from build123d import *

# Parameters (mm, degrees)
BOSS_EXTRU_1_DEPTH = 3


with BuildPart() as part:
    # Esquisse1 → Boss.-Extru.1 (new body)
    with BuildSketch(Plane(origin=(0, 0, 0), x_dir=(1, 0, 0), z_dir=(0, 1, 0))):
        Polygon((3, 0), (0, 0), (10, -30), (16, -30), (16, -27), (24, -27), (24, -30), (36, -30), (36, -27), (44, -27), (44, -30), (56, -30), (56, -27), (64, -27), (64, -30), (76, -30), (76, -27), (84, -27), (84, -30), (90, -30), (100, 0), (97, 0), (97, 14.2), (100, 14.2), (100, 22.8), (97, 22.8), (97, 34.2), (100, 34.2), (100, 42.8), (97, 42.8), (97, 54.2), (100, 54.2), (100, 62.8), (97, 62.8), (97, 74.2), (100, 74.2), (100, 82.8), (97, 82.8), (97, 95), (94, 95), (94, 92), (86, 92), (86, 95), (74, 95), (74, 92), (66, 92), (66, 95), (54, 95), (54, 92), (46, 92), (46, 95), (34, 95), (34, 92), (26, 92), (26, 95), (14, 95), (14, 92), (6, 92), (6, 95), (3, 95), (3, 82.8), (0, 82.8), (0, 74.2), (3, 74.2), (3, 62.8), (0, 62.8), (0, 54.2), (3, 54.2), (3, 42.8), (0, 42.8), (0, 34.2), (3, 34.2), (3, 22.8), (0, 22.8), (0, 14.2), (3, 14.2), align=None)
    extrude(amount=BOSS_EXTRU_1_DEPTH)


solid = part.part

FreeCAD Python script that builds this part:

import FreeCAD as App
import Part
import Sketcher
Q = App.Units.Quantity

doc = App.newDocument("Part")
body = doc.addObject("PartDesign::Body", "Body")

# Sketch on XZ plane
sketch1 = body.newObject("Sketcher::SketchObject", "Sketch")
sketch1.AttachmentSupport = (doc.getObject("XZ_Plane"), [""])
sketch1.MapMode = "FlatFace"
sketch1.addGeometry(Part.LineSegment(App.Vector(3, 0, 0), App.Vector(0, 0, 0)), False)
sketch1.addGeometry(Part.LineSegment(App.Vector(0, 0, 0), App.Vector(10, 30, 0)), False)
sketch1.addGeometry(Part.LineSegment(App.Vector(10, 30, 0), App.Vector(16, 30, 0)), False)
sketch1.addGeometry(Part.LineSegment(App.Vector(16, 30, 0), App.Vector(16, 27, 0)), False)
sketch1.addGeometry(Part.LineSegment(App.Vector(16, 27, 0), App.Vector(24, 27, 0)), False)
sketch1.addGeometry(Part.LineSegment(App.Vector(24, 27, 0), App.Vector(24, 30, 0)), False)
sketch1.addGeometry(Part.LineSegment(App.Vector(24, 30, 0), App.Vector(36, 30, 0)), False)
sketch1.addGeometry(Part.LineSegment(App.Vector(36, 30, 0), App.Vector(36, 27, 0)), False)
sketch1.addGeometry(Part.LineSegment(App.Vector(36, 27, 0), App.Vector(44, 27, 0)), False)
sketch1.addGeometry(Part.LineSegment(App.Vector(44, 27, 0), App.Vector(44, 30, 0)), False)
sketch1.addGeometry(Part.LineSegment(App.Vector(44, 30, 0), App.Vector(56, 30, 0)), False)
sketch1.addGeometry(Part.LineSegment(App.Vector(56, 30, 0), App.Vector(56, 27, 0)), False)
sketch1.addGeometry(Part.LineSegment(App.Vector(56, 27, 0), App.Vector(64, 27, 0)), False)
sketch1.addGeometry(Part.LineSegment(App.Vector(64, 27, 0), App.Vector(64, 30, 0)), False)
sketch1.addGeometry(Part.LineSegment(App.Vector(64, 30, 0), App.Vector(76, 30, 0)), False)
sketch1.addGeometry(Part.LineSegment(App.Vector(76, 30, 0), App.Vector(76, 27, 0)), False)
sketch1.addGeometry(Part.LineSegment(App.Vector(76, 27, 0), App.Vector(84, 27, 0)), False)
sketch1.addGeometry(Part.LineSegment(App.Vector(84, 27, 0), App.Vector(84, 30, 0)), False)
sketch1.addGeometry(Part.LineSegment(App.Vector(84, 30, 0), App.Vector(90, 30, 0)), False)
sketch1.addGeometry(Part.LineSegment(App.Vector(90, 30, 0), App.Vector(100, 0, 0)), False)
sketch1.addGeometry(Part.LineSegment(App.Vector(100, 0, 0), App.Vector(97, 0, 0)), False)
sketch1.addGeometry(Part.LineSegment(App.Vector(97, 0, 0), App.Vector(97, -14.2, 0)), False)
sketch1.addGeometry(Part.LineSegment(App.Vector(97, -14.2, 0), App.Vector(100, -14.2, 0)), False)
sketch1.addGeometry(Part.LineSegment(App.Vector(100, -14.2, 0), App.Vector(100, -22.8, 0)), False)
sketch1.addGeometry(Part.LineSegment(App.Vector(100, -22.8, 0), App.Vector(97, -22.8, 0)), False)
sketch1.addGeometry(Part.LineSegment(App.Vector(97, -22.8, 0), App.Vector(97, -34.2, 0)), False)
sketch1.addGeometry(Part.LineSegment(App.Vector(97, -34.2, 0), App.Vector(100, -34.2, 0)), False)
sketch1.addGeometry(Part.LineSegment(App.Vector(100, -34.2, 0), App.Vector(100, -42.8, 0)), False)
sketch1.addGeometry(Part.LineSegment(App.Vector(100, -42.8, 0), App.Vector(97, -42.8, 0)), False)
sketch1.addGeometry(Part.LineSegment(App.Vector(97, -42.8, 0), App.Vector(97, -54.2, 0)), False)
sketch1.addGeometry(Part.LineSegment(App.Vector(97, -54.2, 0), App.Vector(100, -54.2, 0)), False)
sketch1.addGeometry(Part.LineSegment(App.Vector(100, -54.2, 0), App.Vector(100, -62.8, 0)), False)
sketch1.addGeometry(Part.LineSegment(App.Vector(100, -62.8, 0), App.Vector(97, -62.8, 0)), False)
sketch1.addGeometry(Part.LineSegment(App.Vector(97, -62.8, 0), App.Vector(97, -74.2, 0)), False)
sketch1.addGeometry(Part.LineSegment(App.Vector(97, -74.2, 0), App.Vector(100, -74.2, 0)), False)
sketch1.addGeometry(Part.LineSegment(App.Vector(100, -74.2, 0), App.Vector(100, -82.8, 0)), False)
sketch1.addGeometry(Part.LineSegment(App.Vector(100, -82.8, 0), App.Vector(97, -82.8, 0)), False)
sketch1.addGeometry(Part.LineSegment(App.Vector(97, -82.8, 0), App.Vector(97, -95, 0)), False)
sketch1.addGeometry(Part.LineSegment(App.Vector(97, -95, 0), App.Vector(94, -95, 0)), False)
sketch1.addGeometry(Part.LineSegment(App.Vector(94, -95, 0), App.Vector(94, -92, 0)), False)
sketch1.addGeometry(Part.LineSegment(App.Vector(94, -92, 0), App.Vector(86, -92, 0)), False)
sketch1.addGeometry(Part.LineSegment(App.Vector(86, -92, 0), App.Vector(86, -95, 0)), False)
sketch1.addGeometry(Part.LineSegment(App.Vector(86, -95, 0), App.Vector(74, -95, 0)), False)
sketch1.addGeometry(Part.LineSegment(App.Vector(74, -95, 0), App.Vector(74, -92, 0)), False)
sketch1.addGeometry(Part.LineSegment(App.Vector(74, -92, 0), App.Vector(66, -92, 0)), False)
sketch1.addGeometry(Part.LineSegment(App.Vector(66, -92, 0), App.Vector(66, -95, 0)), False)
sketch1.addGeometry(Part.LineSegment(App.Vector(66, -95, 0), App.Vector(54, -95, 0)), False)
sketch1.addGeometry(Part.LineSegment(App.Vector(54, -95, 0), App.Vector(54, -92, 0)), False)
sketch1.addGeometry(Part.LineSegment(App.Vector(54, -92, 0), App.Vector(46, -92, 0)), False)
sketch1.addGeometry(Part.LineSegment(App.Vector(46, -92, 0), App.Vector(46, -95, 0)), False)
sketch1.addGeometry(Part.LineSegment(App.Vector(46, -95, 0), App.Vector(34, -95, 0)), False)
sketch1.addGeometry(Part.LineSegment(App.Vector(34, -95, 0), App.Vector(34, -92, 0)), False)
sketch1.addGeometry(Part.LineSegment(App.Vector(34, -92, 0), App.Vector(26, -92, 0)), False)
sketch1.addGeometry(Part.LineSegment(App.Vector(26, -92, 0), App.Vector(26, -95, 0)), False)
sketch1.addGeometry(Part.LineSegment(App.Vector(26, -95, 0), App.Vector(14, -95, 0)), False)
sketch1.addGeometry(Part.LineSegment(App.Vector(14, -95, 0), App.Vector(14, -92, 0)), False)
sketch1.addGeometry(Part.LineSegment(App.Vector(14, -92, 0), App.Vector(6, -92, 0)), False)
sketch1.addGeometry(Part.LineSegment(App.Vector(6, -92, 0), App.Vector(6, -95, 0)), False)
sketch1.addGeometry(Part.LineSegment(App.Vector(6, -95, 0), App.Vector(3, -95, 0)), False)
sketch1.addGeometry(Part.LineSegment(App.Vector(3, -95, 0), App.Vector(3, -82.8, 0)), False)
sketch1.addGeometry(Part.LineSegment(App.Vector(3, -82.8, 0), App.Vector(0, -82.8, 0)), False)
sketch1.addGeometry(Part.LineSegment(App.Vector(0, -82.8, 0), App.Vector(0, -74.2, 0)), False)
sketch1.addGeometry(Part.LineSegment(App.Vector(0, -74.2, 0), App.Vector(3, -74.2, 0)), False)
sketch1.addGeometry(Part.LineSegment(App.Vector(3, -74.2, 0), App.Vector(3, -62.8, 0)), False)
sketch1.addGeometry(Part.LineSegment(App.Vector(3, -62.8, 0), App.Vector(0, -62.8, 0)), False)
sketch1.addGeometry(Part.LineSegment(App.Vector(0, -62.8, 0), App.Vector(0, -54.2, 0)), False)
sketch1.addGeometry(Part.LineSegment(App.Vector(0, -54.2, 0), App.Vector(3, -54.2, 0)), False)
sketch1.addGeometry(Part.LineSegment(App.Vector(3, -54.2, 0), App.Vector(3, -42.8, 0)), False)
sketch1.addGeometry(Part.LineSegment(App.Vector(3, -42.8, 0), App.Vector(0, -42.8, 0)), False)
sketch1.addGeometry(Part.LineSegment(App.Vector(0, -42.8, 0), App.Vector(0, -34.2, 0)), False)
sketch1.addGeometry(Part.LineSegment(App.Vector(0, -34.2, 0), App.Vector(3, -34.2, 0)), False)
sketch1.addGeometry(Part.LineSegment(App.Vector(3, -34.2, 0), App.Vector(3, -22.8, 0)), False)
sketch1.addGeometry(Part.LineSegment(App.Vector(3, -22.8, 0), App.Vector(0, -22.8, 0)), False)
sketch1.addGeometry(Part.LineSegment(App.Vector(0, -22.8, 0), App.Vector(0, -14.2, 0)), False)
sketch1.addGeometry(Part.LineSegment(App.Vector(0, -14.2, 0), App.Vector(3, -14.2, 0)), False)
sketch1.addGeometry(Part.LineSegment(App.Vector(3, -14.2, 0), App.Vector(3, 0, 0)), False)
sketch1.addConstraint(Sketcher.Constraint("Coincident", 0, 2, 1, 1))
sketch1.addConstraint(Sketcher.Constraint("Coincident", 1, 2, 2, 1))
sketch1.addConstraint(Sketcher.Constraint("Coincident", 2, 2, 3, 1))
sketch1.addConstraint(Sketcher.Constraint("Coincident", 3, 2, 4, 1))
sketch1.addConstraint(Sketcher.Constraint("Coincident", 4, 2, 5, 1))
sketch1.addConstraint(Sketcher.Constraint("Coincident", 5, 2, 6, 1))
sketch1.addConstraint(Sketcher.Constraint("Coincident", 6, 2, 7, 1))
sketch1.addConstraint(Sketcher.Constraint("Coincident", 7, 2, 8, 1))
sketch1.addConstraint(Sketcher.Constraint("Coincident", 8, 2, 9, 1))
sketch1.addConstraint(Sketcher.Constraint("Coincident", 9, 2, 10, 1))
sketch1.addConstraint(Sketcher.Constraint("Coincident", 10, 2, 11, 1))
sketch1.addConstraint(Sketcher.Constraint("Coincident", 11, 2, 12, 1))
sketch1.addConstraint(Sketcher.Constraint("Coincident", 12, 2, 13, 1))
sketch1.addConstraint(Sketcher.Constraint("Coincident", 13, 2, 14, 1))
sketch1.addConstraint(Sketcher.Constraint("Coincident", 14, 2, 15, 1))
sketch1.addConstraint(Sketcher.Constraint("Coincident", 15, 2, 16, 1))
sketch1.addConstraint(Sketcher.Constraint("Coincident", 16, 2, 17, 1))
sketch1.addConstraint(Sketcher.Constraint("Coincident", 17, 2, 18, 1))
sketch1.addConstraint(Sketcher.Constraint("Coincident", 18, 2, 19, 1))
sketch1.addConstraint(Sketcher.Constraint("Coincident", 19, 2, 20, 1))
sketch1.addConstraint(Sketcher.Constraint("Coincident", 20, 2, 21, 1))
sketch1.addConstraint(Sketcher.Constraint("Coincident", 21, 2, 22, 1))
sketch1.addConstraint(Sketcher.Constraint("Coincident", 22, 2, 23, 1))
sketch1.addConstraint(Sketcher.Constraint("Coincident", 23, 2, 24, 1))
sketch1.addConstraint(Sketcher.Constraint("Coincident", 24, 2, 25, 1))
sketch1.addConstraint(Sketcher.Constraint("Coincident", 25, 2, 26, 1))
sketch1.addConstraint(Sketcher.Constraint("Coincident", 26, 2, 27, 1))
sketch1.addConstraint(Sketcher.Constraint("Coincident", 27, 2, 28, 1))
sketch1.addConstraint(Sketcher.Constraint("Coincident", 28, 2, 29, 1))
sketch1.addConstraint(Sketcher.Constraint("Coincident", 29, 2, 30, 1))
sketch1.addConstraint(Sketcher.Constraint("Coincident", 30, 2, 31, 1))
sketch1.addConstraint(Sketcher.Constraint("Coincident", 31, 2, 32, 1))
sketch1.addConstraint(Sketcher.Constraint("Coincident", 32, 2, 33, 1))
sketch1.addConstraint(Sketcher.Constraint("Coincident", 33, 2, 34, 1))
sketch1.addConstraint(Sketcher.Constraint("Coincident", 34, 2, 35, 1))
sketch1.addConstraint(Sketcher.Constraint("Coincident", 35, 2, 36, 1))
sketch1.addConstraint(Sketcher.Constraint("Coincident", 36, 2, 37, 1))
sketch1.addConstraint(Sketcher.Constraint("Coincident", 37, 2, 38, 1))
sketch1.addConstraint(Sketcher.Constraint("Coincident", 38, 2, 39, 1))
sketch1.addConstraint(Sketcher.Constraint("Coincident", 39, 2, 40, 1))
sketch1.addConstraint(Sketcher.Constraint("Coincident", 40, 2, 41, 1))
sketch1.addConstraint(Sketcher.Constraint("Coincident", 41, 2, 42, 1))
sketch1.addConstraint(Sketcher.Constraint("Coincident", 42, 2, 43, 1))
sketch1.addConstraint(Sketcher.Constraint("Coincident", 43, 2, 44, 1))
sketch1.addConstraint(Sketcher.Constraint("Coincident", 44, 2, 45, 1))
sketch1.addConstraint(Sketcher.Constraint("Coincident", 45, 2, 46, 1))
sketch1.addConstraint(Sketcher.Constraint("Coincident", 46, 2, 47, 1))
sketch1.addConstraint(Sketcher.Constraint("Coincident", 47, 2, 48, 1))
sketch1.addConstraint(Sketcher.Constraint("Coincident", 48, 2, 49, 1))
sketch1.addConstraint(Sketcher.Constraint("Coincident", 49, 2, 50, 1))
sketch1.addConstraint(Sketcher.Constraint("Coincident", 50, 2, 51, 1))
sketch1.addConstraint(Sketcher.Constraint("Coincident", 51, 2, 52, 1))
sketch1.addConstraint(Sketcher.Constraint("Coincident", 52, 2, 53, 1))
sketch1.addConstraint(Sketcher.Constraint("Coincident", 53, 2, 54, 1))
sketch1.addConstraint(Sketcher.Constraint("Coincident", 54, 2, 55, 1))
sketch1.addConstraint(Sketcher.Constraint("Coincident", 55, 2, 56, 1))
sketch1.addConstraint(Sketcher.Constraint("Coincident", 56, 2, 57, 1))
sketch1.addConstraint(Sketcher.Constraint("Coincident", 57, 2, 58, 1))
sketch1.addConstraint(Sketcher.Constraint("Coincident", 58, 2, 59, 1))
sketch1.addConstraint(Sketcher.Constraint("Coincident", 59, 2, 60, 1))
sketch1.addConstraint(Sketcher.Constraint("Coincident", 60, 2, 61, 1))
sketch1.addConstraint(Sketcher.Constraint("Coincident", 61, 2, 62, 1))
sketch1.addConstraint(Sketcher.Constraint("Coincident", 62, 2, 63, 1))
sketch1.addConstraint(Sketcher.Constraint("Coincident", 63, 2, 64, 1))
sketch1.addConstraint(Sketcher.Constraint("Coincident", 64, 2, 65, 1))
sketch1.addConstraint(Sketcher.Constraint("Coincident", 65, 2, 66, 1))
sketch1.addConstraint(Sketcher.Constraint("Coincident", 66, 2, 67, 1))
sketch1.addConstraint(Sketcher.Constraint("Coincident", 67, 2, 68, 1))
sketch1.addConstraint(Sketcher.Constraint("Coincident", 68, 2, 69, 1))
sketch1.addConstraint(Sketcher.Constraint("Coincident", 69, 2, 70, 1))
sketch1.addConstraint(Sketcher.Constraint("Coincident", 70, 2, 71, 1))
sketch1.addConstraint(Sketcher.Constraint("Coincident", 71, 2, 72, 1))
sketch1.addConstraint(Sketcher.Constraint("Coincident", 72, 2, 73, 1))
sketch1.addConstraint(Sketcher.Constraint("Coincident", 73, 2, 74, 1))
sketch1.addConstraint(Sketcher.Constraint("Coincident", 74, 2, 75, 1))
sketch1.addConstraint(Sketcher.Constraint("Coincident", 75, 2, 0, 1))
sketch1.addConstraint(Sketcher.Constraint("Horizontal", 0))
sketch1.addConstraint(Sketcher.Constraint("Horizontal", 2))
sketch1.addConstraint(Sketcher.Constraint("Vertical", 3))
sketch1.addConstraint(Sketcher.Constraint("Horizontal", 4))
sketch1.addConstraint(Sketcher.Constraint("Vertical", 5))
sketch1.addConstraint(Sketcher.Constraint("Horizontal", 6))
sketch1.addConstraint(Sketcher.Constraint("Vertical", 7))
sketch1.addConstraint(Sketcher.Constraint("Horizontal", 8))
sketch1.addConstraint(Sketcher.Constraint("Vertical", 9))
sketch1.addConstraint(Sketcher.Constraint("Horizontal", 10))
sketch1.addConstraint(Sketcher.Constraint("Vertical", 11))
sketch1.addConstraint(Sketcher.Constraint("Horizontal", 12))
sketch1.addConstraint(Sketcher.Constraint("Vertical", 13))
sketch1.addConstraint(Sketcher.Constraint("Horizontal", 14))
sketch1.addConstraint(Sketcher.Constraint("Vertical", 15))
sketch1.addConstraint(Sketcher.Constraint("Horizontal", 16))
sketch1.addConstraint(Sketcher.Constraint("Vertical", 17))
sketch1.addConstraint(Sketcher.Constraint("Horizontal", 18))
sketch1.addConstraint(Sketcher.Constraint("Horizontal", 20))
sketch1.addConstraint(Sketcher.Constraint("Vertical", 21))
sketch1.addConstraint(Sketcher.Constraint("Horizontal", 22))
sketch1.addConstraint(Sketcher.Constraint("Vertical", 23))
sketch1.addConstraint(Sketcher.Constraint("Horizontal", 24))
sketch1.addConstraint(Sketcher.Constraint("Vertical", 25))
sketch1.addConstraint(Sketcher.Constraint("Horizontal", 26))
sketch1.addConstraint(Sketcher.Constraint("Vertical", 27))
sketch1.addConstraint(Sketcher.Constraint("Horizontal", 28))
sketch1.addConstraint(Sketcher.Constraint("Vertical", 29))
sketch1.addConstraint(Sketcher.Constraint("Horizontal", 30))
sketch1.addConstraint(Sketcher.Constraint("Vertical", 31))
sketch1.addConstraint(Sketcher.Constraint("Horizontal", 32))
sketch1.addConstraint(Sketcher.Constraint("Vertical", 33))
sketch1.addConstraint(Sketcher.Constraint("Horizontal", 34))
sketch1.addConstraint(Sketcher.Constraint("Vertical", 35))
sketch1.addConstraint(Sketcher.Constraint("Horizontal", 36))
sketch1.addConstraint(Sketcher.Constraint("Vertical", 37))
sketch1.addConstraint(Sketcher.Constraint("Horizontal", 38))
sketch1.addConstraint(Sketcher.Constraint("Vertical", 39))
sketch1.addConstraint(Sketcher.Constraint("Horizontal", 40))
sketch1.addConstraint(Sketcher.Constraint("Vertical", 41))
sketch1.addConstraint(Sketcher.Constraint("Horizontal", 42))
sketch1.addConstraint(Sketcher.Constraint("Vertical", 43))
sketch1.addConstraint(Sketcher.Constraint("Horizontal", 44))
sketch1.addConstraint(Sketcher.Constraint("Vertical", 45))
sketch1.addConstraint(Sketcher.Constraint("Horizontal", 46))
sketch1.addConstraint(Sketcher.Constraint("Vertical", 47))
sketch1.addConstraint(Sketcher.Constraint("Horizontal", 48))
sketch1.addConstraint(Sketcher.Constraint("Vertical", 49))
sketch1.addConstraint(Sketcher.Constraint("Horizontal", 50))
sketch1.addConstraint(Sketcher.Constraint("Vertical", 51))
sketch1.addConstraint(Sketcher.Constraint("Horizontal", 52))
sketch1.addConstraint(Sketcher.Constraint("Vertical", 53))
sketch1.addConstraint(Sketcher.Constraint("Horizontal", 54))
sketch1.addConstraint(Sketcher.Constraint("Vertical", 55))
sketch1.addConstraint(Sketcher.Constraint("Horizontal", 56))
sketch1.addConstraint(Sketcher.Constraint("Vertical", 57))
sketch1.addConstraint(Sketcher.Constraint("Horizontal", 58))
sketch1.addConstraint(Sketcher.Constraint("Vertical", 59))
sketch1.addConstraint(Sketcher.Constraint("Horizontal", 60))
sketch1.addConstraint(Sketcher.Constraint("Vertical", 61))
sketch1.addConstraint(Sketcher.Constraint("Horizontal", 62))
sketch1.addConstraint(Sketcher.Constraint("Vertical", 63))
sketch1.addConstraint(Sketcher.Constraint("Horizontal", 64))
sketch1.addConstraint(Sketcher.Constraint("Vertical", 65))
sketch1.addConstraint(Sketcher.Constraint("Horizontal", 66))
sketch1.addConstraint(Sketcher.Constraint("Vertical", 67))
sketch1.addConstraint(Sketcher.Constraint("Horizontal", 68))
sketch1.addConstraint(Sketcher.Constraint("Vertical", 69))
sketch1.addConstraint(Sketcher.Constraint("Horizontal", 70))
sketch1.addConstraint(Sketcher.Constraint("Vertical", 71))
sketch1.addConstraint(Sketcher.Constraint("Horizontal", 72))
sketch1.addConstraint(Sketcher.Constraint("Vertical", 73))
sketch1.addConstraint(Sketcher.Constraint("Horizontal", 74))
sketch1.addConstraint(Sketcher.Constraint("Vertical", 75))
sketch1.addConstraint(Sketcher.Constraint("Coincident", 0, 2, -1, 1))
sketch1.addConstraint(Sketcher.Constraint("PointOnObject", 19, 2, -1))
sketch1.addConstraint(Sketcher.Constraint("PointOnObject", 60, 2, -2))
sketch1.addConstraint(Sketcher.Constraint("PointOnObject", 64, 2, -2))
sketch1.addConstraint(Sketcher.Constraint("PointOnObject", 68, 2, -2))
sketch1.addConstraint(Sketcher.Constraint("PointOnObject", 72, 2, -2))
sketch1.addConstraint(Sketcher.Constraint("Horizontal", 2, 2, 5, 2))
sketch1.addConstraint(Sketcher.Constraint("Horizontal", 4, 2, 7, 2))
sketch1.addConstraint(Sketcher.Constraint("Horizontal", 6, 2, 9, 2))
sketch1.addConstraint(Sketcher.Constraint("Horizontal", 8, 2, 11, 2))
sketch1.addConstraint(Sketcher.Constraint("Horizontal", 10, 2, 13, 2))
sketch1.addConstraint(Sketcher.Constraint("Horizontal", 12, 2, 15, 2))
sketch1.addConstraint(Sketcher.Constraint("Horizontal", 14, 2, 17, 2))
sketch1.addConstraint(Sketcher.Constraint("Horizontal", 38, 2, 41, 2))
sketch1.addConstraint(Sketcher.Constraint("Horizontal", 40, 2, 43, 2))
sketch1.addConstraint(Sketcher.Constraint("Horizontal", 42, 2, 45, 2))
sketch1.addConstraint(Sketcher.Constraint("Horizontal", 44, 2, 47, 2))
sketch1.addConstraint(Sketcher.Constraint("Horizontal", 46, 2, 49, 2))
sketch1.addConstraint(Sketcher.Constraint("Horizontal", 48, 2, 51, 2))
sketch1.addConstraint(Sketcher.Constraint("Horizontal", 50, 2, 53, 2))
sketch1.addConstraint(Sketcher.Constraint("Horizontal", 52, 2, 55, 2))
sketch1.addConstraint(Sketcher.Constraint("Horizontal", 54, 2, 57, 2))
sketch1.addConstraint(Sketcher.Constraint("Horizontal", 36, 2, 59, 2))
sketch1.addConstraint(Sketcher.Constraint("Horizontal", 34, 2, 61, 2))
sketch1.addConstraint(Sketcher.Constraint("Horizontal", 32, 2, 63, 2))
sketch1.addConstraint(Sketcher.Constraint("Horizontal", 30, 2, 65, 2))
sketch1.addConstraint(Sketcher.Constraint("Horizontal", 28, 2, 67, 2))
sketch1.addConstraint(Sketcher.Constraint("Horizontal", 26, 2, 69, 2))
sketch1.addConstraint(Sketcher.Constraint("Horizontal", 24, 2, 71, 2))
sketch1.addConstraint(Sketcher.Constraint("Horizontal", 22, 2, 73, 2))
sketch1.addConstraint(Sketcher.Constraint("Vertical", 19, 2, 22, 2))
sketch1.addConstraint(Sketcher.Constraint("Vertical", 21, 2, 24, 2))
sketch1.addConstraint(Sketcher.Constraint("Vertical", 23, 2, 26, 2))
sketch1.addConstraint(Sketcher.Constraint("Vertical", 25, 2, 28, 2))
sketch1.addConstraint(Sketcher.Constraint("Vertical", 27, 2, 30, 2))
sketch1.addConstraint(Sketcher.Constraint("Vertical", 29, 2, 32, 2))
sketch1.addConstraint(Sketcher.Constraint("Vertical", 31, 2, 34, 2))
sketch1.addConstraint(Sketcher.Constraint("Vertical", 33, 2, 36, 2))
sketch1.addConstraint(Sketcher.Constraint("Vertical", 59, 2, 62, 2))
sketch1.addConstraint(Sketcher.Constraint("Vertical", 63, 2, 66, 2))
sketch1.addConstraint(Sketcher.Constraint("Vertical", 67, 2, 70, 2))
sketch1.addConstraint(Sketcher.Constraint("Vertical", 71, 2, 74, 2))
sketch1.addConstraint(Sketcher.Constraint("Equal", 4, 8))
sketch1.addConstraint(Sketcher.Constraint("Equal", 6, 10))
sketch1.addConstraint(Sketcher.Constraint("Equal", 8, 12))
sketch1.addConstraint(Sketcher.Constraint("Equal", 10, 14))
sketch1.addConstraint(Sketcher.Constraint("Equal", 12, 16))
sketch1.addConstraint(Sketcher.Constraint("Equal", 2, 18))
sketch1.addConstraint(Sketcher.Constraint("Equal", 0, 20))
sketch1.addConstraint(Sketcher.Constraint("Equal", 36, 38))
sketch1.addConstraint(Sketcher.Constraint("Equal", 16, 40))
sketch1.addConstraint(Sketcher.Constraint("Equal", 14, 42))
sketch1.addConstraint(Sketcher.Constraint("Equal", 40, 44))
sketch1.addConstraint(Sketcher.Constraint("Equal", 42, 46))
sketch1.addConstraint(Sketcher.Constraint("Equal", 44, 48))
sketch1.addConstraint(Sketcher.Constraint("Equal", 46, 50))
sketch1.addConstraint(Sketcher.Constraint("Equal", 48, 52))
sketch1.addConstraint(Sketcher.Constraint("Equal", 50, 54))
sketch1.addConstraint(Sketcher.Constraint("Equal", 52, 56))
sketch1.addConstraint(Sketcher.Constraint("Equal", 38, 58))
sketch1.addConstraint(Sketcher.Constraint("Equal", 74, 3))
sketch1.addConstraint(Sketcher.Constraint("Equal", 23, 27))
sketch1.addConstraint(Sketcher.Constraint("Equal", 25, 29))
sketch1.addConstraint(Sketcher.Constraint("Equal", 27, 31))
sketch1.addConstraint(Sketcher.Constraint("Equal", 29, 33))
sketch1.addConstraint(Sketcher.Constraint("Equal", 31, 35))
sketch1.addConstraint(Sketcher.Constraint("Equal", 17, 39))
sketch1.addConstraint(Sketcher.Constraint("Equal", 1, 19))
sketch1.addConstraint(Sketcher.Constraint("DistanceX", 0, 2, 0, 1, Q("3 mm")))
sketch1.addConstraint(Sketcher.Constraint("DistanceX", 2, 1, 2, 2, Q("6 mm")))
sketch1.addConstraint(Sketcher.Constraint("DistanceX", 4, 1, 4, 2, Q("8 mm")))
sketch1.addConstraint(Sketcher.Constraint("DistanceX", 6, 1, 6, 2, Q("12 mm")))
sketch1.addConstraint(Sketcher.Constraint("DistanceY", 21, 2, 21, 1, Q("14.2 mm")))
sketch1.addConstraint(Sketcher.Constraint("DistanceY", 23, 2, 23, 1, Q("8.6 mm")))
sketch1.addConstraint(Sketcher.Constraint("DistanceY", 25, 2, 25, 1, Q("11.4 mm")))
sketch1.addConstraint(Sketcher.Constraint("DistanceY", 37, 2, 37, 1, Q("12.2 mm")))
sketch1.addConstraint(Sketcher.Constraint("DistanceY", -1, 1, 1, 2, Q("30 mm")))
pad1 = body.newObject("PartDesign::Pad", "Pad")
pad1.Profile = sketch1
pad1.Length = 3
pad1.Reversed = True

doc.recompute()
